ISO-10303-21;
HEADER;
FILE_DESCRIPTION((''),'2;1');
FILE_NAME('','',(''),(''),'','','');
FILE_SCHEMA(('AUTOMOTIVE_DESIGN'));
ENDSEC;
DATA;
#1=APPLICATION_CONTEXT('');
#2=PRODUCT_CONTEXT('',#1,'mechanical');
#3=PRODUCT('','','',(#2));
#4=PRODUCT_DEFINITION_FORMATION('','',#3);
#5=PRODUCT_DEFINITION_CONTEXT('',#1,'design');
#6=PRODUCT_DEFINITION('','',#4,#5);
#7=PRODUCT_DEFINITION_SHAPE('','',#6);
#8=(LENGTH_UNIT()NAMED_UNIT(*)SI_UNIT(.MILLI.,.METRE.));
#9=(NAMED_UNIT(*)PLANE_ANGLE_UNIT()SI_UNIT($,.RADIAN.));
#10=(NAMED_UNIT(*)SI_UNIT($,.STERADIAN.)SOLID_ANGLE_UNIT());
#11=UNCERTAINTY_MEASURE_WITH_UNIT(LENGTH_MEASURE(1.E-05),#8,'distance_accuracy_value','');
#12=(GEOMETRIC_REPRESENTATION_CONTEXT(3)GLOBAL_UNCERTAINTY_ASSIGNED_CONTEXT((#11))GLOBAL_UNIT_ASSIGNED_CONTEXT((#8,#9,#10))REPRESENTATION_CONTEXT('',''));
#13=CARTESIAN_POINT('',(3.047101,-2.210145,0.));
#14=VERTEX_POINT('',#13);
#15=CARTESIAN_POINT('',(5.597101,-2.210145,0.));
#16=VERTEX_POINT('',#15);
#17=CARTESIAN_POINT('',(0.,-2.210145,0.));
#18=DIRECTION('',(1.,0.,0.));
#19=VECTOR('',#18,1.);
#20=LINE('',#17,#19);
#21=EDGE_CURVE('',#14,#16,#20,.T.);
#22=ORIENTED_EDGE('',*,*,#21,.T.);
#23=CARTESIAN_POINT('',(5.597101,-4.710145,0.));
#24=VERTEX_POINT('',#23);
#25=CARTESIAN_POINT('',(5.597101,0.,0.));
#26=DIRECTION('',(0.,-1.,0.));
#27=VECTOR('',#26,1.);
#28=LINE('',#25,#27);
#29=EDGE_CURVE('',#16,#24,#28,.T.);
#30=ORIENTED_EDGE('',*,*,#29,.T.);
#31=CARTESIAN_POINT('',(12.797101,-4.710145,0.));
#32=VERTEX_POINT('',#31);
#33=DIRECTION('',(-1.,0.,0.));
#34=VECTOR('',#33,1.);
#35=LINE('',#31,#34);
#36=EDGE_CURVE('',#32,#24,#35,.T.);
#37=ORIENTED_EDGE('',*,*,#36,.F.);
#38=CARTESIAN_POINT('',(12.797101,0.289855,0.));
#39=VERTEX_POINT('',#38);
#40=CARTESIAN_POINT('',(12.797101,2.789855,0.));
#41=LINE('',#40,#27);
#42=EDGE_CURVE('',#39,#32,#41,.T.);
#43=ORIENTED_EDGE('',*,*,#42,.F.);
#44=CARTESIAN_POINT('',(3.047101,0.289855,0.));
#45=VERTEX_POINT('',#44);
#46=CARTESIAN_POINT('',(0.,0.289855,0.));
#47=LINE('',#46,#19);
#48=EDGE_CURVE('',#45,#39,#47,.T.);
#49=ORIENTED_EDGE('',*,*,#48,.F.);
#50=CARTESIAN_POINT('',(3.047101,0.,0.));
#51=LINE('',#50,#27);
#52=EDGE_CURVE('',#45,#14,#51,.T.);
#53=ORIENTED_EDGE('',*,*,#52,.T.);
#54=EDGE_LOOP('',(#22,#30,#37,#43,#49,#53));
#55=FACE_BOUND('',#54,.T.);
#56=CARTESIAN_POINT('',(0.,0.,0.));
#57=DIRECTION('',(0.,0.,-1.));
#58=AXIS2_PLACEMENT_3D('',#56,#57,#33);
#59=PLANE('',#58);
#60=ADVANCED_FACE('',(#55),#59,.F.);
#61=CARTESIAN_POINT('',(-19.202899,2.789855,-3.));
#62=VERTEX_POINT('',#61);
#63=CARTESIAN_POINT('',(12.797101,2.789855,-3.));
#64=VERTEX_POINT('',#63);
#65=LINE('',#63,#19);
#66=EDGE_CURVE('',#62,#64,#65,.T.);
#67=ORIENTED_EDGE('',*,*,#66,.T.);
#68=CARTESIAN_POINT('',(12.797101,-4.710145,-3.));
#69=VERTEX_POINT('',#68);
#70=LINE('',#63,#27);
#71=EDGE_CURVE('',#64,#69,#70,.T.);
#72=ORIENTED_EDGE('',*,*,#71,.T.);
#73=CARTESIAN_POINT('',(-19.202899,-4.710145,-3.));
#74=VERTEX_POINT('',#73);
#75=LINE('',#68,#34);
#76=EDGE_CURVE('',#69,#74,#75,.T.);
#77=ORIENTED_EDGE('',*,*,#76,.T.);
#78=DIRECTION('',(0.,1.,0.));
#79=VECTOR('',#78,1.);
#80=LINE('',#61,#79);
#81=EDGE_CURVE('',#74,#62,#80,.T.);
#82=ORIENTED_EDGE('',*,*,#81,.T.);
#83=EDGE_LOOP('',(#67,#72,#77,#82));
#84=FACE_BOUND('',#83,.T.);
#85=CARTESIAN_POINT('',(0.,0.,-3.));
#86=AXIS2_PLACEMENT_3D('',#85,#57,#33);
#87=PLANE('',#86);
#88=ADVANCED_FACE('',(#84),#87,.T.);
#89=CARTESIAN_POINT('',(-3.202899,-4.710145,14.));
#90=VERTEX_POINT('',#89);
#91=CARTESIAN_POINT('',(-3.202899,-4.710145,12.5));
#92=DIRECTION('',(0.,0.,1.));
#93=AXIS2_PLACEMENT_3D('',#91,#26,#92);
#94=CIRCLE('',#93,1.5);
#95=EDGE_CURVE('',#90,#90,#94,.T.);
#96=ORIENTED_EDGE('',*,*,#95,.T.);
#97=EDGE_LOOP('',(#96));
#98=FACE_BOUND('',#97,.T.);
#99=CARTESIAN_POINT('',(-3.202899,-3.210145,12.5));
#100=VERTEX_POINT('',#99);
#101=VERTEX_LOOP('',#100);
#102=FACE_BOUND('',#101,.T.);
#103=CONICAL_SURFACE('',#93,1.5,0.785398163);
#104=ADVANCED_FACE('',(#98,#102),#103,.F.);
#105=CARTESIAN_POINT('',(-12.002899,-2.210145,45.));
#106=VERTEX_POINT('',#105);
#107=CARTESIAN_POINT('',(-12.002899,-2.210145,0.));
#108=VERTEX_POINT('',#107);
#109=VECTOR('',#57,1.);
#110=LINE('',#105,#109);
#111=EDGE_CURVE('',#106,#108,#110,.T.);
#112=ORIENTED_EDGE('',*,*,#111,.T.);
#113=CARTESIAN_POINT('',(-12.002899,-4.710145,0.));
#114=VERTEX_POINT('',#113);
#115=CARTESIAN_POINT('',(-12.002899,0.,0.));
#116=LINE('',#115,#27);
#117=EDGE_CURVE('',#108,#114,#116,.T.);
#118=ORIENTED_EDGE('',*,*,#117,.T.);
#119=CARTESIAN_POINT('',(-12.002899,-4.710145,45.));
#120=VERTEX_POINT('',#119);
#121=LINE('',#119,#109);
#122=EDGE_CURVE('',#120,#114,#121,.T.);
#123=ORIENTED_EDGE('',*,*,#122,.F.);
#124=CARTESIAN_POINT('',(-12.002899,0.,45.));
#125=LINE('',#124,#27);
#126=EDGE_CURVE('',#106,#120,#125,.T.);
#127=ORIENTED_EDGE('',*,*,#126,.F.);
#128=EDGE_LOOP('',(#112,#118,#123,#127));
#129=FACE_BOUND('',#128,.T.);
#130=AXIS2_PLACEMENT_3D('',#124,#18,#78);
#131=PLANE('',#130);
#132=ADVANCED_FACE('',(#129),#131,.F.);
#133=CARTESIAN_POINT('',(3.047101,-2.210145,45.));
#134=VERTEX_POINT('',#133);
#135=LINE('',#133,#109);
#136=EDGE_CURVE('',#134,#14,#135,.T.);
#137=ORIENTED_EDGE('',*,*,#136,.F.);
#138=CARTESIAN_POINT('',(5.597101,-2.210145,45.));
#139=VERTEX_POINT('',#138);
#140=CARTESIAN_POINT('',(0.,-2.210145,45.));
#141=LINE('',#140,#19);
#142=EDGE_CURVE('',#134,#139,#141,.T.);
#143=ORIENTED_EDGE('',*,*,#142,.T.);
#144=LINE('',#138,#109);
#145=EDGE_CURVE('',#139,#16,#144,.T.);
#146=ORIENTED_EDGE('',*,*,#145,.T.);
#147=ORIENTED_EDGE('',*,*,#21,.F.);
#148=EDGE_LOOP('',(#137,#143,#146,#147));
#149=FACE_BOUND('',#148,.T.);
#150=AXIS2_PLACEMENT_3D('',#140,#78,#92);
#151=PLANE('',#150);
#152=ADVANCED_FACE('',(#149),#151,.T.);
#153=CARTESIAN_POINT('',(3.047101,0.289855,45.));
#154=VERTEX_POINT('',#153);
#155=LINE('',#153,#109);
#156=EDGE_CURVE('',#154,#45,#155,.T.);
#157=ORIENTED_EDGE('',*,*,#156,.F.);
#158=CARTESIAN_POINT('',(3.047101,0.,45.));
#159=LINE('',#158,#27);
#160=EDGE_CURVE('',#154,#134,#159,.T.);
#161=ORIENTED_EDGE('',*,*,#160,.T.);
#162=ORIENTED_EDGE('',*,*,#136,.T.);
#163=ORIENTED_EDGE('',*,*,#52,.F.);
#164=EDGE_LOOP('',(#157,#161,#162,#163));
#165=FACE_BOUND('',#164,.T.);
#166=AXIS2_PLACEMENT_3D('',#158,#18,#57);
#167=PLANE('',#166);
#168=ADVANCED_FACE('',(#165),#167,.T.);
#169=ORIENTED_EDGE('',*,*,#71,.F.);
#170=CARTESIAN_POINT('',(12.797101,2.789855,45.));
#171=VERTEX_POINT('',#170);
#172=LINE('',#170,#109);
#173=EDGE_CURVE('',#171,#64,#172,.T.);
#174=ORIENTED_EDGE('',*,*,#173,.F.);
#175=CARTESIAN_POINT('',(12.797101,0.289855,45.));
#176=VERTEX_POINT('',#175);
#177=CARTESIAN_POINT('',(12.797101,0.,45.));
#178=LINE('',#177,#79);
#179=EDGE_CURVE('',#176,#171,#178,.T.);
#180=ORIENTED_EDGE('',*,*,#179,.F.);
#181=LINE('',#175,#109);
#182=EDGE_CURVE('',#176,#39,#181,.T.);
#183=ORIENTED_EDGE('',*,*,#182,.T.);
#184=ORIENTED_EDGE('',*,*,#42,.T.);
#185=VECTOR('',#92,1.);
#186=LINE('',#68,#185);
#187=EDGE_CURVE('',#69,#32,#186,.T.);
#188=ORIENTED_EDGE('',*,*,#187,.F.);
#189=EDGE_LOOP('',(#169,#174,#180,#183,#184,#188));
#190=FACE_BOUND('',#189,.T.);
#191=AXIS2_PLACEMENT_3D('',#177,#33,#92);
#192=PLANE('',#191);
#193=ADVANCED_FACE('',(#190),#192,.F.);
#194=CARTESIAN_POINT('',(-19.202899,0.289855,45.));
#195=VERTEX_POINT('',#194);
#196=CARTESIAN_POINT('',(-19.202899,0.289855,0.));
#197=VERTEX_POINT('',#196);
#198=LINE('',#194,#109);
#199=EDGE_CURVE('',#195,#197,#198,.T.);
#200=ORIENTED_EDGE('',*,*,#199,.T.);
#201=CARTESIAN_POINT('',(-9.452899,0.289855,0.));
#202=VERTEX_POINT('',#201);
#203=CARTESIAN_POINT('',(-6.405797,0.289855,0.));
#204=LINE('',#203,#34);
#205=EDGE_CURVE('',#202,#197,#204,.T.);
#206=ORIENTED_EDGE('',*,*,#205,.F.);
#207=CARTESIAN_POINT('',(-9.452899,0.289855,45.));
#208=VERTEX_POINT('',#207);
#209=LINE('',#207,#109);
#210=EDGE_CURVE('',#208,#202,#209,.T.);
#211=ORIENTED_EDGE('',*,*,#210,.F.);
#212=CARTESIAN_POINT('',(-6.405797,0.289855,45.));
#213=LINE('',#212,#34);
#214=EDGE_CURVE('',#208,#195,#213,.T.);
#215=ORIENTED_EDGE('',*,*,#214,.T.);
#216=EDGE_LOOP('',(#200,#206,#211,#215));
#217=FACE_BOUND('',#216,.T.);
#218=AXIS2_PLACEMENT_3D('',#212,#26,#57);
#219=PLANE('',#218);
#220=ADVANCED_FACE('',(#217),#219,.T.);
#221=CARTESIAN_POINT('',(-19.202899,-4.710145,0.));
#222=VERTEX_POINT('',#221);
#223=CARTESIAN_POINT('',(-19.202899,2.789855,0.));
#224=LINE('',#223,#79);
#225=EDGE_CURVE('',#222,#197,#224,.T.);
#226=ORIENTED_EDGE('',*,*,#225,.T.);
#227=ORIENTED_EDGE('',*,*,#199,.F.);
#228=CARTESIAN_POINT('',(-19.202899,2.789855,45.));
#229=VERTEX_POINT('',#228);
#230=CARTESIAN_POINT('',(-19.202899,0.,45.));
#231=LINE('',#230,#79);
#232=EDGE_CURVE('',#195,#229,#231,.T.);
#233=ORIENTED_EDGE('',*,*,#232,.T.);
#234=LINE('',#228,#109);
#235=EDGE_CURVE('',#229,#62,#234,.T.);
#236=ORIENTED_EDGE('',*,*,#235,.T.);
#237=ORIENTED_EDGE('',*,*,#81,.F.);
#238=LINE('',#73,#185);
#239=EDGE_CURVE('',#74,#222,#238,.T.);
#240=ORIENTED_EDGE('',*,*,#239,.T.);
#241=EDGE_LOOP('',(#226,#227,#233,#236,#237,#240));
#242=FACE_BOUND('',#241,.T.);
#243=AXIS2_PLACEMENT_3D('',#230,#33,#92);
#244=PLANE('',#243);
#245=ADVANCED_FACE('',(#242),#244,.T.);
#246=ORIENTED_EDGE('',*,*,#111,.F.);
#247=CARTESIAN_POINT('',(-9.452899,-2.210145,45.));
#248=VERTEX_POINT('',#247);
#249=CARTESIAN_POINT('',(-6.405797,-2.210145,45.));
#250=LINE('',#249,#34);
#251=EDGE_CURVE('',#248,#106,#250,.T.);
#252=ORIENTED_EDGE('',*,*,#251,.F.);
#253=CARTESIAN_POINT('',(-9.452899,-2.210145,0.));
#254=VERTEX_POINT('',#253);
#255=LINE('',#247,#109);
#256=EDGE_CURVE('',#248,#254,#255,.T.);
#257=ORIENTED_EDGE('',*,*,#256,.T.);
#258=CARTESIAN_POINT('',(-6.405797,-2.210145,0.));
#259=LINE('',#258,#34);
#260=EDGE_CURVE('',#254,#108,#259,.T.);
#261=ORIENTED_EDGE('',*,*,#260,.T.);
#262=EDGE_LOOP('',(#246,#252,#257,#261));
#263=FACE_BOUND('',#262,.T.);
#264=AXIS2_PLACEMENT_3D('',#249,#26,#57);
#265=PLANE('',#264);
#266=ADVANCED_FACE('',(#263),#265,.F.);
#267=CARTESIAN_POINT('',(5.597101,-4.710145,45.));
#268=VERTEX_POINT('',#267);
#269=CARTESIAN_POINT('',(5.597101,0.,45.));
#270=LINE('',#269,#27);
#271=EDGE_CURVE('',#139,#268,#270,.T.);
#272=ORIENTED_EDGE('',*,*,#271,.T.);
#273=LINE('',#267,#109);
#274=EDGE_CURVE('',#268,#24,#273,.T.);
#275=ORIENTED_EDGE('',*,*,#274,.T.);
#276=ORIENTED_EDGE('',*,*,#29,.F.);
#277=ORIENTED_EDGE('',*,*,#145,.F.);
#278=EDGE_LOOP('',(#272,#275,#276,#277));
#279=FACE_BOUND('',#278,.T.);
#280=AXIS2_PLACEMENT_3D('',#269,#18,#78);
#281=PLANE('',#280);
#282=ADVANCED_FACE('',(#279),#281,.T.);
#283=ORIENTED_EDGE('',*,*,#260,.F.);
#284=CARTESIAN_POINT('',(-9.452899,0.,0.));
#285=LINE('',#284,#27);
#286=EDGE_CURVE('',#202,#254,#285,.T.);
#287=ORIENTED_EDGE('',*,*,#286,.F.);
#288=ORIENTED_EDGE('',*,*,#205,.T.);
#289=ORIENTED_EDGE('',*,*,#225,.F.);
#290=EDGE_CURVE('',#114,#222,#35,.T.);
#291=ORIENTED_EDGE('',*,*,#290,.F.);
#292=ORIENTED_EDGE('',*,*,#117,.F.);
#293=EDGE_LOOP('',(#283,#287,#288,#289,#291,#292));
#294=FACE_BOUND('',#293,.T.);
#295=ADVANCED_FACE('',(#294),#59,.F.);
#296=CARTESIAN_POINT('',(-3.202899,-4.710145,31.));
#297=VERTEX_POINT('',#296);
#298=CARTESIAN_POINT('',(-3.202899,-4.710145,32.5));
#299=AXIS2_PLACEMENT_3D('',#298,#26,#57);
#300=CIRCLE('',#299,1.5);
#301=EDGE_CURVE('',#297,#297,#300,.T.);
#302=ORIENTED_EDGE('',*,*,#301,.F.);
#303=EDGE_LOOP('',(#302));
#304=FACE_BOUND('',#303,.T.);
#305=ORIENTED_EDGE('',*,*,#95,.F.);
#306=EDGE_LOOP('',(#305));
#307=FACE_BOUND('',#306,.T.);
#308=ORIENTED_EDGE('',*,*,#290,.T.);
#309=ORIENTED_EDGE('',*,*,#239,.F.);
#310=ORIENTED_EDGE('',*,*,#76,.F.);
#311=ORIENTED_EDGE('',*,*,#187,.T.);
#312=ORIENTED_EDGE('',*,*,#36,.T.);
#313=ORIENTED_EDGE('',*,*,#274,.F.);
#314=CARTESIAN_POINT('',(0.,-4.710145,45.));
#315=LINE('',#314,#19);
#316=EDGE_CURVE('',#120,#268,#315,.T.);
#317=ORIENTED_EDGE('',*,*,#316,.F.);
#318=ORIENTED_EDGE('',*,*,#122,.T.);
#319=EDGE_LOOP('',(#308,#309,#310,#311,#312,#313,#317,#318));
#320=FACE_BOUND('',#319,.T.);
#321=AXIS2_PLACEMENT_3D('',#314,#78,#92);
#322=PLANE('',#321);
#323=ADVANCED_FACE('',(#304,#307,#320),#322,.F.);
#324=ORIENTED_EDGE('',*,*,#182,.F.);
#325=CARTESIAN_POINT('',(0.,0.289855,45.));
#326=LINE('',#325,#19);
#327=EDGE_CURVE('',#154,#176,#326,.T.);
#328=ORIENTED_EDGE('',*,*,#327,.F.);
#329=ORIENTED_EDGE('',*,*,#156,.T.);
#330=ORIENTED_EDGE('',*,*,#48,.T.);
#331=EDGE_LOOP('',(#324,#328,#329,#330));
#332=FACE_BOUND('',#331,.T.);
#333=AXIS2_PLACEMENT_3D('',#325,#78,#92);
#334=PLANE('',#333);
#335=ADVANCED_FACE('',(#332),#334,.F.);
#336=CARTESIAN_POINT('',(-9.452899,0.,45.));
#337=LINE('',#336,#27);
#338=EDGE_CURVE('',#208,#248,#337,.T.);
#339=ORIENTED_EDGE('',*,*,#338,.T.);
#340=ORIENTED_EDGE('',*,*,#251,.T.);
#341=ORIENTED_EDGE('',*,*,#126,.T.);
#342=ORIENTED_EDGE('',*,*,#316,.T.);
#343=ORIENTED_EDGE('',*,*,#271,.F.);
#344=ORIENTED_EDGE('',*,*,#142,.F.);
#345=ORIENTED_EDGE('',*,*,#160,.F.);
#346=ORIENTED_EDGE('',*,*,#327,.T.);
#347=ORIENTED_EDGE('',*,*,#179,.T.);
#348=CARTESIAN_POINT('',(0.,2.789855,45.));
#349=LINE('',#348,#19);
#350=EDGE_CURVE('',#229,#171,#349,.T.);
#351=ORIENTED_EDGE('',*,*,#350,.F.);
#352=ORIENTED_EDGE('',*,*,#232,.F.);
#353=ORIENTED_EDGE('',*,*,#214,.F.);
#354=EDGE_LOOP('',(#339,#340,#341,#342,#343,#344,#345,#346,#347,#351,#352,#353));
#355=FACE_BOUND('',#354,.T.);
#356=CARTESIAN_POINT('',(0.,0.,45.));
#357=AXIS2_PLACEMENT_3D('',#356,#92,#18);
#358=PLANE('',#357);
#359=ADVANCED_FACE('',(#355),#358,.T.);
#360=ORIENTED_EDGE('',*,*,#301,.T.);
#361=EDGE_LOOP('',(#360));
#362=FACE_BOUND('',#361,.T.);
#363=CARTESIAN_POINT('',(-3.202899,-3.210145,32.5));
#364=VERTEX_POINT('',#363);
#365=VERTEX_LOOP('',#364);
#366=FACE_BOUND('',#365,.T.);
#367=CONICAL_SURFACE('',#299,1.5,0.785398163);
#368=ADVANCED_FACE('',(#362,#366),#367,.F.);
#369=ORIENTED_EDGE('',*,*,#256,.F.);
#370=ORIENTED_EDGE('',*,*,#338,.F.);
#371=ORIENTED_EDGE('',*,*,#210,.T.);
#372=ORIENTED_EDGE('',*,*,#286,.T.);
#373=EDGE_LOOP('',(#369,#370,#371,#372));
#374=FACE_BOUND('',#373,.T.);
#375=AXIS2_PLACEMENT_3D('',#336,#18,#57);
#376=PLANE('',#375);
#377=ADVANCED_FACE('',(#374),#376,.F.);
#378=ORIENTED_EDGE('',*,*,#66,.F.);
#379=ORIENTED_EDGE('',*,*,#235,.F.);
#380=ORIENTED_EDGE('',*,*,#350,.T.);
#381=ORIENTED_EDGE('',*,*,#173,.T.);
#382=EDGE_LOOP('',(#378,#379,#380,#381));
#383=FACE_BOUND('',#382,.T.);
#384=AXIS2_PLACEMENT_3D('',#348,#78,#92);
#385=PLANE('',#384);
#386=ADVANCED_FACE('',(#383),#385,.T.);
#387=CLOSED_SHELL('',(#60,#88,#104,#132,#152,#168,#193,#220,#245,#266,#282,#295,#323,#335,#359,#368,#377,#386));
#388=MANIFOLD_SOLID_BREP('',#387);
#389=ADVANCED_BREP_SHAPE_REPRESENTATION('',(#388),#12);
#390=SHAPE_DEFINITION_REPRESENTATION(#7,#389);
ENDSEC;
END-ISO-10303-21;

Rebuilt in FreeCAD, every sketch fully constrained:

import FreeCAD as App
import Part
import Sketcher
from FreeCAD import Vector
Q = App.Units.Quantity


def add_polygon(sketch, points):
    """Adds a closed chain of lines whose ends are joined by coincident constraints."""
    first, n = sketch.GeometryCount, len(points)
    for a, b in zip(points, points[1:] + points[:1]):
        sketch.addGeometry(Part.LineSegment(App.Vector(*a, 0), App.Vector(*b, 0)), False)
    for i in range(n):
        sketch.addConstraint(Sketcher.Constraint("Coincident", first + i, 2, first + (i + 1) % n, 1))

doc = App.newDocument("Part")
params = doc.addObject("Spreadsheet::Sheet", "Params")
for row, (alias, value) in enumerate([
    ("sketch1_width", "16 mm"),
    ("sketch1_width2", "8.8 mm"),
    ("sketch1_height", "7.5 mm"),
    ("sketch1_width3", "2.55 mm"),
    ("pad1_length", "45 mm"),
    ("sketch2_width", "1.5 mm"),
    ("groove_angle", "360 deg"),
    ("sketch3_width", "1.5 mm"),
    ("groove2_angle", "360 deg"),
    ("sketch4_width", "32 mm"),
    ("sketch4_height", "7.5 mm"),
    ("pad2_length", "3 mm"),
], start=1):
    params.set(f"A{row}", alias)
    params.set(f"B{row}", "=" + value)
    params.setAlias(f"B{row}", alias)

body = doc.addObject("PartDesign::Body", "Body")

# Sketch on XY plane
sketch1 = body.newObject("Sketcher::SketchObject", "Sketch")
sketch1.AttachmentSupport = (doc.getObject("XY_Plane"), [""])
sketch1.MapMode = "FlatFace"
add_polygon(sketch1, [(-3.2, 2.8), (-3.2, -4.7), (5.6, -4.7), (5.6, -2.2), (3, -2.2), (3, 0.3), (12.8, 0.3), (12.8, 2.8)])  # lines 0-7
sketch1.addConstraint(Sketcher.Constraint("Vertical", 0))
sketch1.addConstraint(Sketcher.Constraint("Horizontal", 1))
sketch1.addConstraint(Sketcher.Constraint("Vertical", 2))
sketch1.addConstraint(Sketcher.Constraint("Horizontal", 3))
sketch1.addConstraint(Sketcher.Constraint("Vertical", 4))
sketch1.addConstraint(Sketcher.Constraint("Horizontal", 5))
sketch1.addConstraint(Sketcher.Constraint("Vertical", 6))
sketch1.addConstraint(Sketcher.Constraint("Horizontal", 7))
sketch1.addConstraint(Sketcher.Constraint("Equal", 2, 4))
sketch1.addConstraint(Sketcher.Constraint("Equal", 4, 6))
sketch1.addConstraint(Sketcher.Constraint("DistanceX", 7, 2, 7, 1, Q("16 mm")))
sketch1.addConstraint(Sketcher.Constraint("DistanceX", 1, 1, 1, 2, Q("8.8 mm")))
sketch1.addConstraint(Sketcher.Constraint("DistanceY", 0, 2, 0, 1, Q("7.5 mm")))
sketch1.addConstraint(Sketcher.Constraint("DistanceX", 3, 2, 3, 1, Q("2.55 mm")))
sketch1.addConstraint(Sketcher.Constraint("DistanceX", 0, 2, -1, 1, Q("3.202899 mm")))
sketch1.addConstraint(Sketcher.Constraint("DistanceY", 0, 2, -1, 1, Q("4.710145 mm")))
sketch1.setExpression("Constraints[18]", "Params.sketch1_width")
sketch1.setExpression("Constraints[19]", "Params.sketch1_width2")
sketch1.setExpression("Constraints[20]", "Params.sketch1_height")
sketch1.setExpression("Constraints[21]", "Params.sketch1_width3")
pad1 = body.newObject("PartDesign::Pad", "Pad")
pad1.Profile = sketch1
pad1.setExpression("Length", "Params.pad1_length")
doc.recompute()

datumplane = body.newObject("PartDesign::Plane", "DatumPlane")
datumplane.AttachmentSupport = (doc.getObject("YZ_Plane"), [""])
datumplane.MapMode = "FlatFace"
datumplane.AttachmentOffset = App.Placement(Vector(0, 0, -3.202899), App.Rotation())
mirrored = body.newObject("PartDesign::Mirrored", "Mirrored")
mirrored.Originals = [pad1]
mirrored.MirrorPlane = (datumplane, [""])
body.Tip = mirrored

# Sketch on YZ plane
sketch2 = body.newObject("Sketcher::SketchObject", "Sketch001")
sketch2.AttachmentSupport = (doc.getObject("YZ_Plane"), [""])
sketch2.MapMode = "FlatFace"
sketch2.AttachmentOffset = App.Placement(Vector(0, 0, -3.202899), App.Rotation())
add_polygon(sketch2, [(-4.7, 32.5), (-4.7, 31), (-3.2, 32.5)])  # lines 0-2
sketch2.addGeometry(Part.LineSegment(Vector(-4.7, 32.5, 0), Vector(-3.2, 32.5, 0)), True)  # axis
sketch2.addConstraint(Sketcher.Constraint("Vertical", 0))
sketch2.addConstraint(Sketcher.Constraint("Horizontal", 2))
sketch2.addConstraint(Sketcher.Constraint("Horizontal", 3))
sketch2.addConstraint(Sketcher.Constraint("Coincident", 3, 1, 2, 2))
sketch2.addConstraint(Sketcher.Constraint("Equal", 2, 3))
sketch2.addConstraint(Sketcher.Constraint("Equal", 3, 0))
sketch2.addConstraint(Sketcher.Constraint("DistanceX", 2, 2, 2, 1, Q("1.5 mm")))
sketch2.addConstraint(Sketcher.Constraint("DistanceY", -1, 1, 0, 2, Q("31 mm")))
sketch2.addConstraint(Sketcher.Constraint("DistanceX", 0, 2, -1, 1, Q("4.710145 mm")))
sketch2.setExpression("Constraints[9]", "Params.sketch2_width")
groove = body.newObject("PartDesign::Groove", "Groove")
groove.Profile = sketch2
groove.ReferenceAxis = (sketch2, ["Axis0"])
groove.setExpression("Angle", "Params.groove_angle")

# Sketch on YZ plane
sketch3 = body.newObject("Sketcher::SketchObject", "Sketch002")
sketch3.AttachmentSupport = (doc.getObject("YZ_Plane"), [""])
sketch3.MapMode = "FlatFace"
sketch3.AttachmentOffset = App.Placement(Vector(0, 0, -3.202899), App.Rotation())
add_polygon(sketch3, [(-4.7, 12.5), (-4.7, 11), (-3.2, 12.5)])  # lines 0-2
sketch3.addGeometry(Part.LineSegment(Vector(-4.7, 12.5, 0), Vector(-3.2, 12.5, 0)), True)  # axis
sketch3.addConstraint(Sketcher.Constraint("Vertical", 0))
sketch3.addConstraint(Sketcher.Constraint("Horizontal", 2))
sketch3.addConstraint(Sketcher.Constraint("Horizontal", 3))
sketch3.addConstraint(Sketcher.Constraint("Coincident", 3, 1, 2, 2))
sketch3.addConstraint(Sketcher.Constraint("Equal", 2, 3))
sketch3.addConstraint(Sketcher.Constraint("Equal", 3, 0))
sketch3.addConstraint(Sketcher.Constraint("DistanceX", 2, 2, 2, 1, Q("1.5 mm")))
sketch3.addConstraint(Sketcher.Constraint("DistanceY", -1, 1, 0, 2, Q("11 mm")))
sketch3.addConstraint(Sketcher.Constraint("DistanceX", 0, 2, -1, 1, Q("4.710145 mm")))
sketch3.setExpression("Constraints[9]", "Params.sketch3_width")
groove2 = body.newObject("PartDesign::Groove", "Groove001")
groove2.Profile = sketch3
groove2.ReferenceAxis = (sketch3, ["Axis0"])
groove2.setExpression("Angle", "Params.groove2_angle")

# Sketch on XY plane
sketch4 = body.newObject("Sketcher::SketchObject", "Sketch003")
sketch4.AttachmentSupport = (doc.getObject("XY_Plane"), [""])
sketch4.MapMode = "FlatFace"
add_polygon(sketch4, [(13, 3), (13, -5), (-19, -5), (-19, 3)])  # lines 0-3
sketch4.addConstraint(Sketcher.Constraint("Vertical", 0))
sketch4.addConstraint(Sketcher.Constraint("Horizontal", 1))
sketch4.addConstraint(Sketcher.Constraint("Vertical", 2))
sketch4.addConstraint(Sketcher.Constraint("Horizontal", 3))
sketch4.addConstraint(Sketcher.Constraint("DistanceX", 1, 2, 1, 1, Q("32 mm")))
sketch4.addConstraint(Sketcher.Constraint("DistanceY", 0, 2, 0, 1, Q("7.5 mm")))
sketch4.addConstraint(Sketcher.Constraint("DistanceX", -1, 1, 0, 2, Q("12.797101 mm")))
sketch4.addConstraint(Sketcher.Constraint("DistanceY", 0, 2, -1, 1, Q("4.710145 mm")))
sketch4.setExpression("Constraints[8]", "Params.sketch4_width")
sketch4.setExpression("Constraints[9]", "Params.sketch4_height")
pad2 = body.newObject("PartDesign::Pad", "Pad001")
pad2.Profile = sketch4
pad2.setExpression("Length", "Params.pad2_length")
pad2.Reversed = True

doc.recompute()
